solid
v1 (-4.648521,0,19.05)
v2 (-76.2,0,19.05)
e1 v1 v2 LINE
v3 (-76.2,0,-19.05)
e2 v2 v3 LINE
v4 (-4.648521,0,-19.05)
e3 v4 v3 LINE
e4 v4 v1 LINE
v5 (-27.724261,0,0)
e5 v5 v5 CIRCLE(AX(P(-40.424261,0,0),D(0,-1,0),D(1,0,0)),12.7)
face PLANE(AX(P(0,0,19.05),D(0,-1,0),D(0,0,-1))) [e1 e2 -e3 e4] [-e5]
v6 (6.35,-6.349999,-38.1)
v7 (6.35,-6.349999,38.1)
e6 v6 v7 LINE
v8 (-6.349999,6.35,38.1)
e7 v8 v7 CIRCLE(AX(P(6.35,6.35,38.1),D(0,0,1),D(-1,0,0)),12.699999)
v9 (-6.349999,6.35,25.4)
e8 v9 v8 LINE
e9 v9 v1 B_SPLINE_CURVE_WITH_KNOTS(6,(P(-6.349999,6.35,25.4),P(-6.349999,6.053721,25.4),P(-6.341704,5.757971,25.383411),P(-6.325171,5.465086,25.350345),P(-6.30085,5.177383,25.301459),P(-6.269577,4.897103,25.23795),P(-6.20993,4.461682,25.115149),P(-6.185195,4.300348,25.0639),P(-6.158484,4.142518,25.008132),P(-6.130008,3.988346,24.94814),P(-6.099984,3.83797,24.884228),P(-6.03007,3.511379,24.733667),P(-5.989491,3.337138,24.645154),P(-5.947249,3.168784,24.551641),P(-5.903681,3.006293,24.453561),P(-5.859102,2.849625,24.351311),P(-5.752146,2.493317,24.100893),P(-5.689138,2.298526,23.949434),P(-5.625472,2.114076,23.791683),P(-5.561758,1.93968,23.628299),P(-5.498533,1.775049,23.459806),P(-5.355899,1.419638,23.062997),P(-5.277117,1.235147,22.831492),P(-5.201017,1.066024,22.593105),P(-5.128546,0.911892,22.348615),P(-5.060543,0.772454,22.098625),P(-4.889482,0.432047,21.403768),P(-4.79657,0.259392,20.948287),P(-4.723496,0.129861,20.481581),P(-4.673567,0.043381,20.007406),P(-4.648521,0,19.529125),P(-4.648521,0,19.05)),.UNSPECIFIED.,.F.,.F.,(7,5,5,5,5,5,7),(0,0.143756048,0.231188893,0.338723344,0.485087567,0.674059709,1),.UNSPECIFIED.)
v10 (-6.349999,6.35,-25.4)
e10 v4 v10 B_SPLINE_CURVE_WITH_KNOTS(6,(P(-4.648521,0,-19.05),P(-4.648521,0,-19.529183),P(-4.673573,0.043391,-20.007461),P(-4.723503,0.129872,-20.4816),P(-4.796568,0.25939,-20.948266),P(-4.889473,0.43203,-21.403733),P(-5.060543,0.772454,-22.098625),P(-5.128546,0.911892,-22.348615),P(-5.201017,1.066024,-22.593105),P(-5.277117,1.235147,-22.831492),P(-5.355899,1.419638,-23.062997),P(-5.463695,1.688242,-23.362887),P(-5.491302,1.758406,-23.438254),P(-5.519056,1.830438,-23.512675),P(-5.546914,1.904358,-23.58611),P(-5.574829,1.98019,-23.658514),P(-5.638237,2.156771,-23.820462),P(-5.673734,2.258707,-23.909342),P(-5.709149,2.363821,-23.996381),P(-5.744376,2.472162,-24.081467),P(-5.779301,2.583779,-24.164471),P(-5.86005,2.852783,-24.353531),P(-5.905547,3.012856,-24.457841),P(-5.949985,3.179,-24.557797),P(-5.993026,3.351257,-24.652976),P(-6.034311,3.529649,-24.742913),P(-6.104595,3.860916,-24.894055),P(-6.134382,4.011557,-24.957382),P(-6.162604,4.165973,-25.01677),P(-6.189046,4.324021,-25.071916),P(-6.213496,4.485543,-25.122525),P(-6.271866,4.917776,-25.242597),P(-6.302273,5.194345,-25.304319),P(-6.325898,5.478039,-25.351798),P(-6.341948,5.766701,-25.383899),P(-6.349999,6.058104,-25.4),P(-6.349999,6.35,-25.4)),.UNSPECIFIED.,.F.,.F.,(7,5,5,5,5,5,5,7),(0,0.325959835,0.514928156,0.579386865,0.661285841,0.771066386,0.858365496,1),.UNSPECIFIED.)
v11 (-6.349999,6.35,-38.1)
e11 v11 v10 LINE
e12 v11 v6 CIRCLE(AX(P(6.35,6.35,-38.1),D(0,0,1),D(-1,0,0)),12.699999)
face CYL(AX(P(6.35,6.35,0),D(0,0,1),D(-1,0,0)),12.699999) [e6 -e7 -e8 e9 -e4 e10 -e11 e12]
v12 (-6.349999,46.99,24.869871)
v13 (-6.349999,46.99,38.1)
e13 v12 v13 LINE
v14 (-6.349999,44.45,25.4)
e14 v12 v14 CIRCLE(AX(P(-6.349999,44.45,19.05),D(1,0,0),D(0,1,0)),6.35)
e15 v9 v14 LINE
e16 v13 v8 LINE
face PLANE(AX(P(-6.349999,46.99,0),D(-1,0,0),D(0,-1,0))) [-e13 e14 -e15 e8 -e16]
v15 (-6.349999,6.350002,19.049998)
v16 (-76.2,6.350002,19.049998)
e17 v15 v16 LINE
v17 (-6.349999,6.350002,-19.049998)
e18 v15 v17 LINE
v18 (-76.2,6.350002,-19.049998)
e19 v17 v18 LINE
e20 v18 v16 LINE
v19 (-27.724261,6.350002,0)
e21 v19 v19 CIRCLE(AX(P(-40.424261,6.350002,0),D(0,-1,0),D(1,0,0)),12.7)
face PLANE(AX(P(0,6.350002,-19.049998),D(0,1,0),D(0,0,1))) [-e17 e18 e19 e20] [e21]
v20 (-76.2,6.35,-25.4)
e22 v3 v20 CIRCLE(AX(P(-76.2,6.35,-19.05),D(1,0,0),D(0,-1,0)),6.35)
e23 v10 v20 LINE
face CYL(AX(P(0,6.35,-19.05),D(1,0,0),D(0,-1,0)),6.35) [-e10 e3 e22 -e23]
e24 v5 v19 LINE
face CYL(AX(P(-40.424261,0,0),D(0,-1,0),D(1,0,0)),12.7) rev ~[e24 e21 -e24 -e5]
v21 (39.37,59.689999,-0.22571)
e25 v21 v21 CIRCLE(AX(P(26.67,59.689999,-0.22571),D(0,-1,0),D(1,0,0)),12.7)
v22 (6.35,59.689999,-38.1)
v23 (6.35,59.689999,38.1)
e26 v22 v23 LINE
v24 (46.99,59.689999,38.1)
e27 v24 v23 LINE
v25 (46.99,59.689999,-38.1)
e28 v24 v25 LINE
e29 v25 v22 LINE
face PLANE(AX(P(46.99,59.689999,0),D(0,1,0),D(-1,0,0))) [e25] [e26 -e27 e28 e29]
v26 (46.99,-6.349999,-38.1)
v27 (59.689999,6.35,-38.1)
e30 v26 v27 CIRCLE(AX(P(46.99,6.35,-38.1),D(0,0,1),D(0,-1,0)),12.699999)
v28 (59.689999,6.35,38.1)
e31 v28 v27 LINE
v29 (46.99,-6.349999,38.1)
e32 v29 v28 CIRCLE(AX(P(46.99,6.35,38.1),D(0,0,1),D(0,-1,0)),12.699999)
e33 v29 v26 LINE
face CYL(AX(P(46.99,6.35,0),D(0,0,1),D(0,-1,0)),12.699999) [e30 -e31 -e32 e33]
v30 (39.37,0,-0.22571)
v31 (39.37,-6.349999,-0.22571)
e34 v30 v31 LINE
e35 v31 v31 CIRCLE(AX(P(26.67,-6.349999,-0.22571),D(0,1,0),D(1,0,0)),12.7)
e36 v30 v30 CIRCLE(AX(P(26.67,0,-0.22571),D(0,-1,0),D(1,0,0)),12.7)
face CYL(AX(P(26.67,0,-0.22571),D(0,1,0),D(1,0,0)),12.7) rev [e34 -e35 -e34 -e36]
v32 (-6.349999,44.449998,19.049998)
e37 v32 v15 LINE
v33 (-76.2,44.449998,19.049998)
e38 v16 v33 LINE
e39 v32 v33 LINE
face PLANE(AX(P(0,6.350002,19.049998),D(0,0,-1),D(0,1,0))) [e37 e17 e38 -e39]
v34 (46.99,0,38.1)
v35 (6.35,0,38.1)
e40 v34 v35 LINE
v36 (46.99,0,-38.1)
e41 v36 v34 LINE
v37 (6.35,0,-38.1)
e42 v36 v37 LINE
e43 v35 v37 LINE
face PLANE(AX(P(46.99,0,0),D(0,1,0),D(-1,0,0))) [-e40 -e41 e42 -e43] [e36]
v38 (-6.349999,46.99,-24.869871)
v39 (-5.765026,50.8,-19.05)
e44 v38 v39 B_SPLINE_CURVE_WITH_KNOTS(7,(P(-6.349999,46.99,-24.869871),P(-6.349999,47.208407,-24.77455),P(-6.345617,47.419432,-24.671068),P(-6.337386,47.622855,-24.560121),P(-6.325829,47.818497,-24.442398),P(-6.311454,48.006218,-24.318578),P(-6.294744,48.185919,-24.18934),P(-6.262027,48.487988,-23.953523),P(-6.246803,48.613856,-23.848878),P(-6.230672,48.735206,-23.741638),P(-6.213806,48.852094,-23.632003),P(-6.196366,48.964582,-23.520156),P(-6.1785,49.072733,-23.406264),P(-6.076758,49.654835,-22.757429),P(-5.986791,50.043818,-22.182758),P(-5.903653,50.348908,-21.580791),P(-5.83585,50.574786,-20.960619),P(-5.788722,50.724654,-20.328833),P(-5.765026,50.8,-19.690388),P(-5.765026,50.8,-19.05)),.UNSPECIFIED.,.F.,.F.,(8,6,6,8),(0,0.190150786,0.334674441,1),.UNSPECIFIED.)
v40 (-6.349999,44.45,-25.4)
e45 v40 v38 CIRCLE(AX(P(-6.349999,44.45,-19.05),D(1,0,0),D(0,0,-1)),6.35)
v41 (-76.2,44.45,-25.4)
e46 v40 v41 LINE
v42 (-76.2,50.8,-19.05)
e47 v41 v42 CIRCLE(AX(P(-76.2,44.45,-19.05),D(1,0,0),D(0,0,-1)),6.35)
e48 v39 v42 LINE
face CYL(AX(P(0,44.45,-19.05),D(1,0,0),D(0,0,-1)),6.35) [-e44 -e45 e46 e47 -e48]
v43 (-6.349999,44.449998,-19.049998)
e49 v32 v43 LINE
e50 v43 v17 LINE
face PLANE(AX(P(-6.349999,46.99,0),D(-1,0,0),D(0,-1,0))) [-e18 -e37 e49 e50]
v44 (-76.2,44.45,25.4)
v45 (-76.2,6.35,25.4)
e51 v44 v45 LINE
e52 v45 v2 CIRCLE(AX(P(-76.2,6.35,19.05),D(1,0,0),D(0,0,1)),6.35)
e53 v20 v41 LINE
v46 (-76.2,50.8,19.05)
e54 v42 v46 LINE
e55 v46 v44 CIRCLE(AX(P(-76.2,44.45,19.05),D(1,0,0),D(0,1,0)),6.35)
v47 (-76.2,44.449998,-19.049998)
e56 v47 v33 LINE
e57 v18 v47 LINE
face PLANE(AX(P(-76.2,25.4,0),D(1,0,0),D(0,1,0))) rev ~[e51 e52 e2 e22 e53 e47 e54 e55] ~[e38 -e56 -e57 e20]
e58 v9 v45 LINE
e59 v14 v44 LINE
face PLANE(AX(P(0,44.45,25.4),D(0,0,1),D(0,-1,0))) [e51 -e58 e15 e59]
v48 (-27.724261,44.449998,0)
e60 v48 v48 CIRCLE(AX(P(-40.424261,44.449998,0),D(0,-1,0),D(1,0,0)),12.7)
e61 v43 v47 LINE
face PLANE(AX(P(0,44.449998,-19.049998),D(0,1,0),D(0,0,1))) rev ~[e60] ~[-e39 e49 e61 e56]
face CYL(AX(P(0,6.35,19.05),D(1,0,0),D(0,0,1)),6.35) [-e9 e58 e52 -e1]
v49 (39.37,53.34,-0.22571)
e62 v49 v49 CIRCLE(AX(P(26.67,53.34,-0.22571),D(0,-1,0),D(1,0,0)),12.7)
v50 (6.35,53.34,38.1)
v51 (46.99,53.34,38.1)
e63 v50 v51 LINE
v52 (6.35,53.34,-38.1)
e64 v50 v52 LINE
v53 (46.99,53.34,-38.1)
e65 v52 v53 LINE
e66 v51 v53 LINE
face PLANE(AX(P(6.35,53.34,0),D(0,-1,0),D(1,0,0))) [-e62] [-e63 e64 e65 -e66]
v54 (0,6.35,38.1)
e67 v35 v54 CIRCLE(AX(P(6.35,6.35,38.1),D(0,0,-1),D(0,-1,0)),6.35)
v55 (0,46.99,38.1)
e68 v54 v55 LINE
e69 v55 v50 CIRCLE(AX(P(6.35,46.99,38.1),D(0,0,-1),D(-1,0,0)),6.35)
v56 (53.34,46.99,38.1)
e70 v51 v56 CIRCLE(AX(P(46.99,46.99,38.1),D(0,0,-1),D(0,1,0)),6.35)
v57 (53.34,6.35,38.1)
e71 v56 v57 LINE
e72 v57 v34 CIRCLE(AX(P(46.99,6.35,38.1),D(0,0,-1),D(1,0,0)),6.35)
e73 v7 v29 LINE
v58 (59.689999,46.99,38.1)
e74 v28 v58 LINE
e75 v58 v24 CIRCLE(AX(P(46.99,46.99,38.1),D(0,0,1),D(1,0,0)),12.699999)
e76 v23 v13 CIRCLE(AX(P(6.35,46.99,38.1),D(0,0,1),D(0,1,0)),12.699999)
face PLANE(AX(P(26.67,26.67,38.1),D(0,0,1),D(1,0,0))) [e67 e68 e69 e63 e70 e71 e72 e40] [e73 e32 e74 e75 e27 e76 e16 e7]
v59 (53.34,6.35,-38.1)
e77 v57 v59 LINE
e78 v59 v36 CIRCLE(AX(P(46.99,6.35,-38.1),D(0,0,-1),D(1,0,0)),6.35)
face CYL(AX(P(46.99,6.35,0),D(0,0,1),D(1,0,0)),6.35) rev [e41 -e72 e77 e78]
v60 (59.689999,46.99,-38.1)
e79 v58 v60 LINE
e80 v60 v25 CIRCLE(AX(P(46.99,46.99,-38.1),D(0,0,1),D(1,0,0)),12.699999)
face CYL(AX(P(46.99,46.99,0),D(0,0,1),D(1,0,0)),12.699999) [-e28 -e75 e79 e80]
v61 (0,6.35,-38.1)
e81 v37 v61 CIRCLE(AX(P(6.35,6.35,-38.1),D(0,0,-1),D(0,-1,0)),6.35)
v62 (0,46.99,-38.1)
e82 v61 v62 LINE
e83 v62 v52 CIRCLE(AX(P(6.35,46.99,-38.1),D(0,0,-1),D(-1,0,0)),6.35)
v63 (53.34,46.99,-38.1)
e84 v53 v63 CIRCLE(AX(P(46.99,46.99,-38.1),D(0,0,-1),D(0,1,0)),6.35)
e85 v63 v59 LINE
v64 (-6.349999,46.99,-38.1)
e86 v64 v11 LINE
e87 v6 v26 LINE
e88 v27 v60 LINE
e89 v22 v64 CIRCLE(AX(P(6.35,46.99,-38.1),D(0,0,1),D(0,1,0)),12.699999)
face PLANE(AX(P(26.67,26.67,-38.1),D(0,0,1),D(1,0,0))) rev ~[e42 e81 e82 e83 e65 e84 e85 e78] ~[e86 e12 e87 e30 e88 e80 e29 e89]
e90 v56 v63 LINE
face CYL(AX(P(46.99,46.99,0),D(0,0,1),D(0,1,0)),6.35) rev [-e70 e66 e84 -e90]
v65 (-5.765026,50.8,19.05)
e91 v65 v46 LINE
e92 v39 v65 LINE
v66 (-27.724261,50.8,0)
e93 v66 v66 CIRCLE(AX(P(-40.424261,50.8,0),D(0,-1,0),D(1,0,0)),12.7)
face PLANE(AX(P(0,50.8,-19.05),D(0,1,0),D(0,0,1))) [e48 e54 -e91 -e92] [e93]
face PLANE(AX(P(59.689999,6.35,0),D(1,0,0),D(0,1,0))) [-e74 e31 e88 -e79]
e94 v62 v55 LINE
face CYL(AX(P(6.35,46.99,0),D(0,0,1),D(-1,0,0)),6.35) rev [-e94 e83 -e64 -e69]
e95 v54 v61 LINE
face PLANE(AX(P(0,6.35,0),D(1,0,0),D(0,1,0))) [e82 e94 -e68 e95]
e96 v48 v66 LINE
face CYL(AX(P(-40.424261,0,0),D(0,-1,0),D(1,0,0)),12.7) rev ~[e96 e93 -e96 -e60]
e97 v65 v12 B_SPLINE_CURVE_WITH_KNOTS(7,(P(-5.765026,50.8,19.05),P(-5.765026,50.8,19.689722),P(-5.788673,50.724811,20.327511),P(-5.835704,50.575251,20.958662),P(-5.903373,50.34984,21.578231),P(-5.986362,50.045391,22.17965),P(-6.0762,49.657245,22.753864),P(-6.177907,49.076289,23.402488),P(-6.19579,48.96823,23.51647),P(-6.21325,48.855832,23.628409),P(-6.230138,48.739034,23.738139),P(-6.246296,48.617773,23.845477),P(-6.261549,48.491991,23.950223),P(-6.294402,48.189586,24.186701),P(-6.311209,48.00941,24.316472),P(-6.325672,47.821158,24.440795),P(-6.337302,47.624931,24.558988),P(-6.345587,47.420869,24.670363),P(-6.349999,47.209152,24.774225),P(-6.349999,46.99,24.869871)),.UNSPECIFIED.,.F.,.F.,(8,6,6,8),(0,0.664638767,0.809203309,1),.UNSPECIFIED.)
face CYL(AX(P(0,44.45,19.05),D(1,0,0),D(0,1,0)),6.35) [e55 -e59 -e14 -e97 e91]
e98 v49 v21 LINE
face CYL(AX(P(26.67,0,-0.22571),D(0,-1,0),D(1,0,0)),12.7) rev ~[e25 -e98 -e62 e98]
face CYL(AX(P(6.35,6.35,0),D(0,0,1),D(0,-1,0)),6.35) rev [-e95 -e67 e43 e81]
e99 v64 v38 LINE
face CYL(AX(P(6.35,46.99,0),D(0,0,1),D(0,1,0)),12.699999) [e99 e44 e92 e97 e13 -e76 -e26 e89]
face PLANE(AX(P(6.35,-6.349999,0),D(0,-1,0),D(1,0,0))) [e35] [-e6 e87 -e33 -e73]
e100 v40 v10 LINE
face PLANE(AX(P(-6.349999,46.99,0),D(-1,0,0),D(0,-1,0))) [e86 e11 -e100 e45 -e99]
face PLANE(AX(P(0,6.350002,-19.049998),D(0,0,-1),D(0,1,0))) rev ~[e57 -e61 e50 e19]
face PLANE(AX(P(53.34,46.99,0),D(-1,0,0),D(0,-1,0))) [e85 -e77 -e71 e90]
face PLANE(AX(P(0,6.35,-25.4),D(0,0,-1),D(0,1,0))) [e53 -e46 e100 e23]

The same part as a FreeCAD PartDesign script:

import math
import FreeCAD as App
import Part
import Sketcher
from FreeCAD import Vector
Q = App.Units.Quantity


def add_polygon(sketch, points):
    """Adds a closed chain of lines whose ends are joined by coincident constraints."""
    first, n = sketch.GeometryCount, len(points)
    for a, b in zip(points, points[1:] + points[:1]):
        sketch.addGeometry(Part.LineSegment(App.Vector(*a, 0), App.Vector(*b, 0)), False)
    for i in range(n):
        sketch.addConstraint(Sketcher.Constraint("Coincident", first + i, 2, first + (i + 1) % n, 1))

doc = App.newDocument("Part")
body = doc.addObject("PartDesign::Body", "Body")

sketch1 = body.newObject("Sketcher::SketchObject", "Sketch")
sketch1.AttachmentSupport = (doc.getObject("XY_Plane"), [""])
sketch1.MapMode = "FlatFace"
sketch1.addGeometry(Part.LineSegment(Vector(47, 60, 0), Vector(6, 60, 0)), False)
sketch1.addGeometry(Part.ArcOfCircle(Part.Circle(Vector(6, 47, 0), Vector(0, 0, 1), 13), math.radians(90), math.radians(180)), False)
sketch1.addGeometry(Part.LineSegment(Vector(-6, 47, 0), Vector(-6, 6, 0)), False)
sketch1.addGeometry(Part.ArcOfCircle(Part.Circle(Vector(6, 6, 0), Vector(0, 0, 1), 13), math.radians(180), math.radians(270)), False)
sketch1.addGeometry(Part.LineSegment(Vector(6, -6, 0), Vector(47, -6, 0)), False)
sketch1.addGeometry(Part.ArcOfCircle(Part.Circle(Vector(47, 6, 0), Vector(0, 0, 1), 13), math.radians(-90), math.radians(0)), False)
sketch1.addGeometry(Part.LineSegment(Vector(60, 6, 0), Vector(60, 47, 0)), False)
sketch1.addGeometry(Part.ArcOfCircle(Part.Circle(Vector(47, 47, 0), Vector(0, 0, 1), 13), math.radians(0), math.radians(90)), False)
sketch1.addGeometry(Part.ArcOfCircle(Part.Circle(Vector(47, 6, 0), Vector(0, 0, 1), 6), math.radians(-90), math.radians(0)), False)
sketch1.addGeometry(Part.LineSegment(Vector(47, 0, 0), Vector(6, 0, 0)), False)
sketch1.addGeometry(Part.ArcOfCircle(Part.Circle(Vector(6, 6, 0), Vector(0, 0, 1), 6), math.radians(180), math.radians(270)), False)
sketch1.addGeometry(Part.LineSegment(Vector(0, 6, 0), Vector(0, 47, 0)), False)
sketch1.addGeometry(Part.ArcOfCircle(Part.Circle(Vector(6, 47, 0), Vector(0, 0, 1), 6), math.radians(90), math.radians(180)), False)
sketch1.addGeometry(Part.LineSegment(Vector(6, 53, 0), Vector(47, 53, 0)), False)
sketch1.addGeometry(Part.ArcOfCircle(Part.Circle(Vector(47, 47, 0), Vector(0, 0, 1), 6), math.radians(0), math.radians(90)), False)
sketch1.addGeometry(Part.LineSegment(Vector(53, 47, 0), Vector(53, 6, 0)), False)
sketch1.addConstraint(Sketcher.Constraint("Tangent", 0, 2, 1, 1))
sketch1.addConstraint(Sketcher.Constraint("Tangent", 1, 2, 2, 1))
sketch1.addConstraint(Sketcher.Constraint("Tangent", 2, 2, 3, 1))
sketch1.addConstraint(Sketcher.Constraint("Tangent", 3, 2, 4, 1))
sketch1.addConstraint(Sketcher.Constraint("Tangent", 4, 2, 5, 1))
sketch1.addConstraint(Sketcher.Constraint("Tangent", 5, 2, 6, 1))
sketch1.addConstraint(Sketcher.Constraint("Tangent", 6, 2, 7, 1))
sketch1.addConstraint(Sketcher.Constraint("Tangent", 7, 2, 0, 1))
sketch1.addConstraint(Sketcher.Constraint("Tangent", 8, 1, 9, 1))
sketch1.addConstraint(Sketcher.Constraint("Tangent", 9, 2, 10, 2))
sketch1.addConstraint(Sketcher.Constraint("Tangent", 10, 1, 11, 1))
sketch1.addConstraint(Sketcher.Constraint("Tangent", 11, 2, 12, 2))
sketch1.addConstraint(Sketcher.Constraint("Tangent", 12, 1, 13, 1))
sketch1.addConstraint(Sketcher.Constraint("Tangent", 13, 2, 14, 2))
sketch1.addConstraint(Sketcher.Constraint("Tangent", 14, 1, 15, 1))
sketch1.addConstraint(Sketcher.Constraint("Tangent", 15, 2, 8, 2))
sketch1.addConstraint(Sketcher.Constraint("Horizontal", 0))
sketch1.addConstraint(Sketcher.Constraint("Vertical", 2))
sketch1.addConstraint(Sketcher.Constraint("Horizontal", 4))
sketch1.addConstraint(Sketcher.Constraint("Vertical", 6))
sketch1.addConstraint(Sketcher.Constraint("Horizontal", 9))
sketch1.addConstraint(Sketcher.Constraint("Vertical", 11))
sketch1.addConstraint(Sketcher.Constraint("Horizontal", 13))
sketch1.addConstraint(Sketcher.Constraint("Vertical", 15))
sketch1.addConstraint(Sketcher.Constraint("Coincident", 8, 3, 5, 3))
sketch1.addConstraint(Sketcher.Constraint("Coincident", 10, 3, 3, 3))
sketch1.addConstraint(Sketcher.Constraint("Coincident", 12, 3, 1, 3))
sketch1.addConstraint(Sketcher.Constraint("Equal", 1, 3))
sketch1.addConstraint(Sketcher.Constraint("Equal", 3, 5))
sketch1.addConstraint(Sketcher.Constraint("Equal", 5, 7))
sketch1.addConstraint(Sketcher.Constraint("Equal", 12, 14))
sketch1.addConstraint(Sketcher.Constraint("Symmetric", 2, 2, 3, 2, -1, 1))
sketch1.addConstraint(Sketcher.Constraint("PointOnObject", 8, 1, -1))
sketch1.addConstraint(Sketcher.Constraint("Equal", 13, 2))
sketch1.addConstraint(Sketcher.Constraint("Radius", 1, Q("0.4999999 in")))
sketch1.addConstraint(Sketcher.Constraint("DistanceX", 0, 2, 0, 1, Q("1.6 in")))
pad1 = body.newObject("PartDesign::Pad", "Pad")
pad1.Profile = sketch1
pad1.Length = Q("3 in")
pad1.Midplane = True

sketch2 = body.newObject("Sketcher::SketchObject", "Sketch001")
sketch2.AttachmentSupport = (doc.getObject("XZ_Plane"), [""])
sketch2.MapMode = "FlatFace"
sketch2.addGeometry(Part.Circle(Vector(27, 0, 0), Vector(0, 0, 1), 13), False)
sketch2.addConstraint(Sketcher.Constraint("Diameter", 0, Q("1 in")))
sketch2.addConstraint(Sketcher.Constraint("DistanceX", -1, 1, 0, 3, Q("1.05 in")))
sketch2.addConstraint(Sketcher.Constraint("DistanceY", 0, 3, -1, 1, 0.22571))
pocket1 = body.newObject("PartDesign::Pocket", "Pocket")
pocket1.Profile = sketch2
pocket1.Type = "ThroughAll"
pocket1.Midplane = True

sketch3 = body.newObject("Sketcher::SketchObject", "Sketch002")
sketch3.AttachmentSupport = (doc.getObject("YZ_Plane"), [""])
sketch3.MapMode = "FlatFace"
sketch3.addGeometry(Part.ArcOfCircle(Part.Circle(Vector(44, 19, 0), Vector(0, 0, 1), 6), math.radians(0), math.radians(90)), False)
sketch3.addGeometry(Part.LineSegment(Vector(44, 25, 0), Vector(6, 25, 0)), False)
sketch3.addGeometry(Part.ArcOfCircle(Part.Circle(Vector(6, 19, 0), Vector(0, 0, 1), 6), math.radians(90), math.radians(180)), False)
sketch3.addGeometry(Part.LineSegment(Vector(0, 19, 0), Vector(0, -19, 0)), False)
sketch3.addGeometry(Part.ArcOfCircle(Part.Circle(Vector(6, -19, 0), Vector(0, 0, 1), 6), math.radians(180), math.radians(270)), False)
sketch3.addGeometry(Part.LineSegment(Vector(6, -25, 0), Vector(44, -25, 0)), False)
sketch3.addGeometry(Part.ArcOfCircle(Part.Circle(Vector(44, -19, 0), Vector(0, 0, 1), 6), math.radians(-90), math.radians(0)), False)
sketch3.addGeometry(Part.LineSegment(Vector(51, -19, 0), Vector(51, 19, 0)), False)
add_polygon(sketch3, [(44, -19), (6, -19), (6, 19), (44, 19)])
sketch3.addConstraint(Sketcher.Constraint("Tangent", 0, 2, 1, 1))
sketch3.addConstraint(Sketcher.Constraint("Tangent", 1, 2, 2, 1))
sketch3.addConstraint(Sketcher.Constraint("Tangent", 2, 2, 3, 1))
sketch3.addConstraint(Sketcher.Constraint("Tangent", 3, 2, 4, 1))
sketch3.addConstraint(Sketcher.Constraint("Tangent", 4, 2, 5, 1))
sketch3.addConstraint(Sketcher.Constraint("Tangent", 5, 2, 6, 1))
sketch3.addConstraint(Sketcher.Constraint("Tangent", 6, 2, 7, 1))
sketch3.addConstraint(Sketcher.Constraint("Tangent", 7, 2, 0, 1))
sketch3.addConstraint(Sketcher.Constraint("Horizontal", 1))
sketch3.addConstraint(Sketcher.Constraint("Vertical", 3))
sketch3.addConstraint(Sketcher.Constraint("Horizontal", 5))
sketch3.addConstraint(Sketcher.Constraint("Vertical", 7))
sketch3.addConstraint(Sketcher.Constraint("Horizontal", 8))
sketch3.addConstraint(Sketcher.Constraint("Vertical", 9))
sketch3.addConstraint(Sketcher.Constraint("Horizontal", 10))
sketch3.addConstraint(Sketcher.Constraint("Vertical", 11))
sketch3.addConstraint(Sketcher.Constraint("Coincident", 8, 2, 4, 3))
sketch3.addConstraint(Sketcher.Constraint("Coincident", 9, 2, 2, 3))
sketch3.addConstraint(Sketcher.Constraint("Coincident", 10, 2, 0, 3))
sketch3.addConstraint(Sketcher.Constraint("Equal", 4, 6))
sketch3.addConstraint(Sketcher.Constraint("Symmetric", 2, 2, 3, 2, -1, 1))
sketch3.addConstraint(Sketcher.Constraint("Equal", 5, 3))
sketch3.addConstraint(Sketcher.Constraint("Radius", 0, Q("0.25 in")))
sketch3.addConstraint(Sketcher.Constraint("DistanceX", 1, 2, 1, 1, Q("1.5 in")))
pad2 = body.newObject("PartDesign::Pad", "Pad001")
pad2.Profile = sketch3
pad2.Length = Q("3 in")
pad2.Reversed = True

sketch4 = body.newObject("Sketcher::SketchObject", "Sketch003")
sketch4.AttachmentSupport = (doc.getObject("XZ_Plane"), [""])
sketch4.MapMode = "FlatFace"
sketch4.addGeometry(Part.Circle(Vector(-40, 0, 0), Vector(0, 0, 1), 13), False)
sketch4.addConstraint(Sketcher.Constraint("PointOnObject", 0, 3, -1))
sketch4.addConstraint(Sketcher.Constraint("Diameter", 0, Q("1 in")))
sketch4.addConstraint(Sketcher.Constraint("DistanceX", 0, 3, -1, 1, 40.424261))
pocket2 = body.newObject("PartDesign::Pocket", "Pocket001")
pocket2.Profile = sketch4
pocket2.Type = "ThroughAll"

doc.recompute()
